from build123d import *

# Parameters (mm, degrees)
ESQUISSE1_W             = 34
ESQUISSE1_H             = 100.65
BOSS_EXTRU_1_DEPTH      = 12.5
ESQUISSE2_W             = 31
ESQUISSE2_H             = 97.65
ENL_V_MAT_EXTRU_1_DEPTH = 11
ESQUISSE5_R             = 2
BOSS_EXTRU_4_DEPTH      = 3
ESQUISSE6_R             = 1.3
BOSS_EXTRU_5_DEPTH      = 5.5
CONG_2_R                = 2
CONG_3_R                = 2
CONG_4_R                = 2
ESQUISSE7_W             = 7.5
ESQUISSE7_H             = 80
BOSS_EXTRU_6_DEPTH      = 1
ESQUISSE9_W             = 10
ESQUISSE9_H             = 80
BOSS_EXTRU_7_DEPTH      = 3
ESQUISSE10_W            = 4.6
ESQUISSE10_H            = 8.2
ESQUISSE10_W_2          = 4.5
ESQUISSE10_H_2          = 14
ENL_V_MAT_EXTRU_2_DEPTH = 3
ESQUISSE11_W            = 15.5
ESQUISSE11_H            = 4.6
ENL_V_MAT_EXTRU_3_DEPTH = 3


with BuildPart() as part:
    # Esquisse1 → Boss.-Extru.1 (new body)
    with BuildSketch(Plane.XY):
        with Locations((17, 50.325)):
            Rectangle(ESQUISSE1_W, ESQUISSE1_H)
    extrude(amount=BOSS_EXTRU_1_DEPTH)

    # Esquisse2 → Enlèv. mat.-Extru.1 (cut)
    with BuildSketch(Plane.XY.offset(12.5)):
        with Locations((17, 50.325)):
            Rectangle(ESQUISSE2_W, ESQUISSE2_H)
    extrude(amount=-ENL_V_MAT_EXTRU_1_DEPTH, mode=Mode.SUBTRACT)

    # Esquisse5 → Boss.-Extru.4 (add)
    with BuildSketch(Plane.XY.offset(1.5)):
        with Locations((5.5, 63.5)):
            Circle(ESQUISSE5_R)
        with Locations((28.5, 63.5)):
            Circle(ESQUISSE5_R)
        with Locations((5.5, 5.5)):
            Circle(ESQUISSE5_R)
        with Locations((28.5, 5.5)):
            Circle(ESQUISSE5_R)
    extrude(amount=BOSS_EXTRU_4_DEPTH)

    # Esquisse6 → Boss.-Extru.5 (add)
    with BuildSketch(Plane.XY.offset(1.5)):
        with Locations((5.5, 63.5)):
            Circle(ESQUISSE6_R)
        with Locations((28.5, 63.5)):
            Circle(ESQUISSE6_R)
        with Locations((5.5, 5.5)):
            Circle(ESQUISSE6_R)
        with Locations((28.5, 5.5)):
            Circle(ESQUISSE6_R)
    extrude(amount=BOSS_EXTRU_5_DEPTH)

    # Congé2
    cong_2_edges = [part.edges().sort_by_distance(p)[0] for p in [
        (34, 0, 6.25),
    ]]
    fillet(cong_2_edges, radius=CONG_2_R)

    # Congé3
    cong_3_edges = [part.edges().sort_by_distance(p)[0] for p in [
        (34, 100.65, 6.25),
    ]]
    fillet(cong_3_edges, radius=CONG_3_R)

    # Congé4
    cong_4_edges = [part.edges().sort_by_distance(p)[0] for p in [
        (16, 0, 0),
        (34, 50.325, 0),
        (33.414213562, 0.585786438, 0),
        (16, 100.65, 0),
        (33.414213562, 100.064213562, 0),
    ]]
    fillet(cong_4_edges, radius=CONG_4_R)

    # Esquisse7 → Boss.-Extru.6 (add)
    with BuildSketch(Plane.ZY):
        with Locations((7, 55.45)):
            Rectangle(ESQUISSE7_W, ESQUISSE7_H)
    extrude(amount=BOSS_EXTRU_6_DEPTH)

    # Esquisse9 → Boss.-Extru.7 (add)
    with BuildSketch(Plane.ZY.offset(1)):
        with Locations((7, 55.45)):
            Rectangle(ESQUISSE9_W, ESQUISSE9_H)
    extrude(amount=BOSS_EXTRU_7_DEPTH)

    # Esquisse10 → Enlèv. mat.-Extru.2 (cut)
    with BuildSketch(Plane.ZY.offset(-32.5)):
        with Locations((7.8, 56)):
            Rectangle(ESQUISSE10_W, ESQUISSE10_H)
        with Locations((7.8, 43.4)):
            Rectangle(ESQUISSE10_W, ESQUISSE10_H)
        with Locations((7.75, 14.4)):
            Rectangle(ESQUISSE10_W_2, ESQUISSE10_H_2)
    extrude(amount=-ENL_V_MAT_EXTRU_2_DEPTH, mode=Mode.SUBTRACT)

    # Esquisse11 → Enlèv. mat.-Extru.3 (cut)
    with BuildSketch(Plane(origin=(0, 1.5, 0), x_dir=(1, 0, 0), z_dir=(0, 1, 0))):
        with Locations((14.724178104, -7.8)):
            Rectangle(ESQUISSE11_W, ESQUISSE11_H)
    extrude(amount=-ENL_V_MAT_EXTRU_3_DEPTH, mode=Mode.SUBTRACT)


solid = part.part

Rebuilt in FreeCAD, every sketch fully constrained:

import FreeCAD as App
import Part
import Sketcher

V = App.Vector
Q = App.Units.Quantity


def edges_at(feature, points):
    """Names of the edges that pass closest to the given points."""
    edges = feature.Shape.Edges
    near = lambda p: min(range(len(edges)), key=lambda i: edges[i].distToShape(Part.Vertex(*p))[0])
    return sorted({f"Edge{near(p) + 1}" for p in points})

doc = App.newDocument("Part")
body = doc.addObject("PartDesign::Body", "Body")

# Sketch on XY plane
sketch1 = body.newObject("Sketcher::SketchObject", "Sketch")
sketch1.AttachmentSupport = (doc.getObject("XY_Plane"), [""])
sketch1.MapMode = "FlatFace"
sketch1.addGeometry(Part.LineSegment(V(0, 101, 0), V(0, 0, 0)), False)
sketch1.addGeometry(Part.LineSegment(V(0, 0, 0), V(34, 0, 0)), False)
sketch1.addGeometry(Part.LineSegment(V(34, 0, 0), V(34, 101, 0)), False)
sketch1.addGeometry(Part.LineSegment(V(34, 101, 0), V(0, 101, 0)), False)
sketch1.addConstraint(Sketcher.Constraint("Coincident", 0, 2, 1, 1))
sketch1.addConstraint(Sketcher.Constraint("Coincident", 1, 2, 2, 1))
sketch1.addConstraint(Sketcher.Constraint("Coincident", 2, 2, 3, 1))
sketch1.addConstraint(Sketcher.Constraint("Coincident", 3, 2, 0, 1))
sketch1.addConstraint(Sketcher.Constraint("Vertical", 0))
sketch1.addConstraint(Sketcher.Constraint("Horizontal", 1))
sketch1.addConstraint(Sketcher.Constraint("Vertical", 2))
sketch1.addConstraint(Sketcher.Constraint("Horizontal", 3))
sketch1.addConstraint(Sketcher.Constraint("Coincident", 0, 2, -1, 1))
sketch1.addConstraint(Sketcher.Constraint("DistanceX", 1, 1, 1, 2, Q("34 mm")))
sketch1.addConstraint(Sketcher.Constraint("DistanceY", 0, 2, 0, 1, Q("100.65 mm")))
pad1 = body.newObject("PartDesign::Pad", "Pad")
pad1.Profile = sketch1
pad1.Length = 12.5

# Sketch on XY plane
sketch2 = body.newObject("Sketcher::SketchObject", "Sketch001")
sketch2.AttachmentSupport = (doc.getObject("XY_Plane"), [""])
sketch2.MapMode = "FlatFace"
sketch2.AttachmentOffset = App.Placement(V(0, 0, 12.5), App.Rotation())
sketch2.addGeometry(Part.LineSegment(V(2, 99, 0), V(2, 2, 0)), False)
sketch2.addGeometry(Part.LineSegment(V(2, 2, 0), V(32, 2, 0)), False)
sketch2.addGeometry(Part.LineSegment(V(32, 2, 0), V(32, 99, 0)), False)
sketch2.addGeometry(Part.LineSegment(V(32, 99, 0), V(2, 99, 0)), False)
sketch2.addConstraint(Sketcher.Constraint("Coincident", 0, 2, 1, 1))
sketch2.addConstraint(Sketcher.Constraint("Coincident", 1, 2, 2, 1))
sketch2.addConstraint(Sketcher.Constraint("Coincident", 2, 2, 3, 1))
sketch2.addConstraint(Sketcher.Constraint("Coincident", 3, 2, 0, 1))
sketch2.addConstraint(Sketcher.Constraint("Vertical", 0))
sketch2.addConstraint(Sketcher.Constraint("Horizontal", 1))
sketch2.addConstraint(Sketcher.Constraint("Vertical", 2))
sketch2.addConstraint(Sketcher.Constraint("Horizontal", 3))
sketch2.addConstraint(Sketcher.Constraint("DistanceX", 1, 1, 1, 2, Q("31 mm")))
sketch2.addConstraint(Sketcher.Constraint("DistanceY", 0, 2, 0, 1, Q("97.65 mm")))
sketch2.addConstraint(Sketcher.Constraint("DistanceX", -1, 1, 0, 2, Q("1.5 mm")))
sketch2.addConstraint(Sketcher.Constraint("DistanceY", -1, 1, 0, 2, Q("1.5 mm")))
pocket1 = body.newObject("PartDesign::Pocket", "Pocket")
pocket1.Profile = sketch2
pocket1.Length = 11

# Sketch on XY plane
sketch3 = body.newObject("Sketcher::SketchObject", "Sketch002")
sketch3.AttachmentSupport = (doc.getObject("XY_Plane"), [""])
sketch3.MapMode = "FlatFace"
sketch3.AttachmentOffset = App.Placement(V(0, 0, 1.5), App.Rotation())
sketch3.addGeometry(Part.Circle(V(5.5, 63.5, 0), V(0, 0, 1), 2), False)
sketch3.addGeometry(Part.Circle(V(28.5, 63.5, 0), V(0, 0, 1), 2), False)
sketch3.addGeometry(Part.Circle(V(5.5, 5.5, 0), V(0, 0, 1), 2), False)
sketch3.addGeometry(Part.Circle(V(28.5, 5.5, 0), V(0, 0, 1), 2), False)
sketch3.addConstraint(Sketcher.Constraint("Equal", 0, 1))
sketch3.addConstraint(Sketcher.Constraint("Equal", 1, 2))
sketch3.addConstraint(Sketcher.Constraint("Equal", 2, 3))
sketch3.addConstraint(Sketcher.Constraint("Horizontal", 0, 3, 1, 3))
sketch3.addConstraint(Sketcher.Constraint("Horizontal", 2, 3, 3, 3))
sketch3.addConstraint(Sketcher.Constraint("Vertical", 0, 3, 2, 3))
sketch3.addConstraint(Sketcher.Constraint("Vertical", 1, 3, 3, 3))
sketch3.addConstraint(Sketcher.Constraint("Diameter", 0, Q("4 mm")))
sketch3.addConstraint(Sketcher.Constraint("DistanceX", 0, 3, 1, 3, Q("23 mm")))
sketch3.addConstraint(Sketcher.Constraint("DistanceY", 2, 3, 0, 3, Q("58 mm")))
sketch3.addConstraint(Sketcher.Constraint("DistanceX", -1, 1, 0, 3, Q("5.5 mm")))
sketch3.addConstraint(Sketcher.Constraint("DistanceY", -1, 1, 0, 3, Q("63.5 mm")))
pad2 = body.newObject("PartDesign::Pad", "Pad001")
pad2.Profile = sketch3
pad2.Length = 3

# Sketch on XY plane
sketch4 = body.newObject("Sketcher::SketchObject", "Sketch003")
sketch4.AttachmentSupport = (doc.getObject("XY_Plane"), [""])
sketch4.MapMode = "FlatFace"
sketch4.AttachmentOffset = App.Placement(V(0, 0, 1.5), App.Rotation())
sketch4.addGeometry(Part.Circle(V(5.5, 63.5, 0), V(0, 0, 1), 1.3), False)
sketch4.addGeometry(Part.Circle(V(28.5, 63.5, 0), V(0, 0, 1), 1.3), False)
sketch4.addGeometry(Part.Circle(V(5.5, 5.5, 0), V(0, 0, 1), 1.3), False)
sketch4.addGeometry(Part.Circle(V(28.5, 5.5, 0), V(0, 0, 1), 1.3), False)
sketch4.addConstraint(Sketcher.Constraint("Equal", 0, 1))
sketch4.addConstraint(Sketcher.Constraint("Equal", 1, 2))
sketch4.addConstraint(Sketcher.Constraint("Equal", 2, 3))
sketch4.addConstraint(Sketcher.Constraint("Horizontal", 0, 3, 1, 3))
sketch4.addConstraint(Sketcher.Constraint("Horizontal", 2, 3, 3, 3))
sketch4.addConstraint(Sketcher.Constraint("Vertical", 0, 3, 2, 3))
sketch4.addConstraint(Sketcher.Constraint("Vertical", 1, 3, 3, 3))
sketch4.addConstraint(Sketcher.Constraint("Diameter", 0, Q("2.6 mm")))
sketch4.addConstraint(Sketcher.Constraint("DistanceX", 0, 3, 1, 3, Q("23 mm")))
sketch4.addConstraint(Sketcher.Constraint("DistanceY", 2, 3, 0, 3, Q("58 mm")))
sketch4.addConstraint(Sketcher.Constraint("DistanceX", -1, 1, 0, 3, Q("5.5 mm")))
sketch4.addConstraint(Sketcher.Constraint("DistanceY", -1, 1, 0, 3, Q("63.5 mm")))
pad3 = body.newObject("PartDesign::Pad", "Pad002")
pad3.Profile = sketch4
pad3.Length = 5.5
doc.recompute()

fillet = body.newObject("PartDesign::Fillet", "Fillet")
fillet.Base = (pad3, edges_at(pad3, [(34, 0, 6.25)]))
fillet.Radius = 2
doc.recompute()

fillet2 = body.newObject("PartDesign::Fillet", "Fillet001")
fillet2.Base = (fillet, edges_at(fillet, [(34, 100.65, 6.25)]))
fillet2.Radius = 2
doc.recompute()

fillet3 = body.newObject("PartDesign::Fillet", "Fillet002")
fillet3.Base = (fillet2, edges_at(fillet2, [
    (16, 0, 0),
    (34, 50.325, 0),
    (33.414, 0.586, 0),
    (16, 100.65, 0),
    (33.414, 100.064, 0),
]))
fillet3.Radius = 2

# Sketch on YZ plane
sketch5 = body.newObject("Sketcher::SketchObject", "Sketch004")
sketch5.AttachmentSupport = (doc.getObject("YZ_Plane"), [""])
sketch5.MapMode = "FlatFace"
sketch5.addGeometry(Part.LineSegment(V(95, 3, 0), V(15, 3, 0)), False)
sketch5.addGeometry(Part.LineSegment(V(15, 3, 0), V(15, 11, 0)), False)
sketch5.addGeometry(Part.LineSegment(V(15, 11, 0), V(95, 11, 0)), False)
sketch5.addGeometry(Part.LineSegment(V(95, 11, 0), V(95, 3, 0)), False)
sketch5.addConstraint(Sketcher.Constraint("Coincident", 0, 2, 1, 1))
sketch5.addConstraint(Sketcher.Constraint("Coincident", 1, 2, 2, 1))
sketch5.addConstraint(Sketcher.Constraint("Coincident", 2, 2, 3, 1))
sketch5.addConstraint(Sketcher.Constraint("Coincident", 3, 2, 0, 1))
sketch5.addConstraint(Sketcher.Constraint("Horizontal", 0))
sketch5.addConstraint(Sketcher.Constraint("Vertical", 1))
sketch5.addConstraint(Sketcher.Constraint("Horizontal", 2))
sketch5.addConstraint(Sketcher.Constraint("Vertical", 3))
sketch5.addConstraint(Sketcher.Constraint("DistanceX", 0, 2, 0, 1, Q("80 mm")))
sketch5.addConstraint(Sketcher.Constraint("DistanceY", 1, 1, 1, 2, Q("7.5 mm")))
sketch5.addConstraint(Sketcher.Constraint("DistanceX", -1, 1, 0, 2, Q("15.45 mm")))
sketch5.addConstraint(Sketcher.Constraint("DistanceY", -1, 1, 0, 2, Q("3.25 mm")))
pad4 = body.newObject("PartDesign::Pad", "Pad003")
pad4.Profile = sketch5
pad4.Length = 1
pad4.Reversed = True

# Sketch on YZ plane
sketch6 = body.newObject("Sketcher::SketchObject", "Sketch005")
sketch6.AttachmentSupport = (doc.getObject("YZ_Plane"), [""])
sketch6.MapMode = "FlatFace"
sketch6.AttachmentOffset = App.Placement(V(0, 0, -1), App.Rotation())
sketch6.addGeometry(Part.LineSegment(V(95, 2, 0), V(15, 2, 0)), False)
sketch6.addGeometry(Part.LineSegment(V(15, 2, 0), V(15, 12, 0)), False)
sketch6.addGeometry(Part.LineSegment(V(15, 12, 0), V(95, 12, 0)), False)
sketch6.addGeometry(Part.LineSegment(V(95, 12, 0), V(95, 2, 0)), False)
sketch6.addConstraint(Sketcher.Constraint("Coincident", 0, 2, 1, 1))
sketch6.addConstraint(Sketcher.Constraint("Coincident", 1, 2, 2, 1))
sketch6.addConstraint(Sketcher.Constraint("Coincident", 2, 2, 3, 1))
sketch6.addConstraint(Sketcher.Constraint("Coincident", 3, 2, 0, 1))
sketch6.addConstraint(Sketcher.Constraint("Horizontal", 0))
sketch6.addConstraint(Sketcher.Constraint("Vertical", 1))
sketch6.addConstraint(Sketcher.Constraint("Horizontal", 2))
sketch6.addConstraint(Sketcher.Constraint("Vertical", 3))
sketch6.addConstraint(Sketcher.Constraint("DistanceX", 0, 2, 0, 1, Q("80 mm")))
sketch6.addConstraint(Sketcher.Constraint("DistanceY", 1, 1, 1, 2, Q("10 mm")))
sketch6.addConstraint(Sketcher.Constraint("DistanceY", -1, 1, 0, 2, Q("2 mm")))
sketch6.addConstraint(Sketcher.Constraint("DistanceX", -1, 1, 0, 2, Q("15.45 mm")))
pad5 = body.newObject("PartDesign::Pad", "Pad004")
pad5.Profile = sketch6
pad5.Length = 3
pad5.Reversed = True

# Sketch on YZ plane
sketch7 = body.newObject("Sketcher::SketchObject", "Sketch006")
sketch7.AttachmentSupport = (doc.getObject("YZ_Plane"), [""])
sketch7.MapMode = "FlatFace"
sketch7.AttachmentOffset = App.Placement(V(0, 0, 32.5), App.Rotation())
sketch7.addGeometry(Part.LineSegment(V(60.1, 5.5, 0), V(51.9, 5.5, 0)), False)
sketch7.addGeometry(Part.LineSegment(V(51.9, 5.5, 0), V(51.9, 10.1, 0)), False)
sketch7.addGeometry(Part.LineSegment(V(51.9, 10.1, 0), V(60.1, 10.1, 0)), False)
sketch7.addGeometry(Part.LineSegment(V(60.1, 10.1, 0), V(60.1, 5.5, 0)), False)
sketch7.addGeometry(Part.LineSegment(V(47.5, 5.5, 0), V(39.3, 5.5, 0)), False)
sketch7.addGeometry(Part.LineSegment(V(39.3, 5.5, 0), V(39.3, 10.1, 0)), False)
sketch7.addGeometry(Part.LineSegment(V(39.3, 10.1, 0), V(47.5, 10.1, 0)), False)
sketch7.addGeometry(Part.LineSegment(V(47.5, 10.1, 0), V(47.5, 5.5, 0)), False)
sketch7.addGeometry(Part.LineSegment(V(21.4, 5.5, 0), V(7.4, 5.5, 0)), False)
sketch7.addGeometry(Part.LineSegment(V(7.4, 5.5, 0), V(7.4, 10, 0)), False)
sketch7.addGeometry(Part.LineSegment(V(7.4, 10, 0), V(21.4, 10, 0)), False)
sketch7.addGeometry(Part.LineSegment(V(21.4, 10, 0), V(21.4, 5.5, 0)), False)
sketch7.addConstraint(Sketcher.Constraint("Coincident", 0, 2, 1, 1))
sketch7.addConstraint(Sketcher.Constraint("Coincident", 1, 2, 2, 1))
sketch7.addConstraint(Sketcher.Constraint("Coincident", 2, 2, 3, 1))
sketch7.addConstraint(Sketcher.Constraint("Coincident", 3, 2, 0, 1))
sketch7.addConstraint(Sketcher.Constraint("Coincident", 4, 2, 5, 1))
sketch7.addConstraint(Sketcher.Constraint("Coincident", 5, 2, 6, 1))
sketch7.addConstraint(Sketcher.Constraint("Coincident", 6, 2, 7, 1))
sketch7.addConstraint(Sketcher.Constraint("Coincident", 7, 2, 4, 1))
sketch7.addConstraint(Sketcher.Constraint("Coincident", 8, 2, 9, 1))
sketch7.addConstraint(Sketcher.Constraint("Coincident", 9, 2, 10, 1))
sketch7.addConstraint(Sketcher.Constraint("Coincident", 10, 2, 11, 1))
sketch7.addConstraint(Sketcher.Constraint("Coincident", 11, 2, 8, 1))
sketch7.addConstraint(Sketcher.Constraint("Horizontal", 0))
sketch7.addConstraint(Sketcher.Constraint("Vertical", 1))
sketch7.addConstraint(Sketcher.Constraint("Horizontal", 2))
sketch7.addConstraint(Sketcher.Constraint("Vertical", 3))
sketch7.addConstraint(Sketcher.Constraint("Horizontal", 4))
sketch7.addConstraint(Sketcher.Constraint("Vertical", 5))
sketch7.addConstraint(Sketcher.Constraint("Horizontal", 6))
sketch7.addConstraint(Sketcher.Constraint("Vertical", 7))
sketch7.addConstraint(Sketcher.Constraint("Horizontal", 8))
sketch7.addConstraint(Sketcher.Constraint("Vertical", 9))
sketch7.addConstraint(Sketcher.Constraint("Horizontal", 10))
sketch7.addConstraint(Sketcher.Constraint("Vertical", 11))
sketch7.addConstraint(Sketcher.Constraint("Horizontal", 3, 2, 4, 2))
sketch7.addConstraint(Sketcher.Constraint("Horizontal", 2, 2, 5, 2))
sketch7.addConstraint(Sketcher.Constraint("Horizontal", 7, 2, 8, 2))
sketch7.addConstraint(Sketcher.Constraint("Equal", 2, 4))
sketch7.addConstraint(Sketcher.Constraint("DistanceX", 8, 2, 8, 1, Q("14 mm")))
sketch7.addConstraint(Sketcher.Constraint("DistanceX", 0, 2, 0, 1, Q("8.2 mm")))
sketch7.addConstraint(Sketcher.Constraint("DistanceY", 1, 1, 1, 2, Q("4.6 mm")))
sketch7.addConstraint(Sketcher.Constraint("DistanceY", 9, 1, 9, 2, Q("4.5 mm")))
sketch7.addConstraint(Sketcher.Constraint("DistanceY", -1, 1, 9, 2, Q("10 mm")))
sketch7.addConstraint(Sketcher.Constraint("DistanceX", -1, 1, 0, 2, Q("51.9 mm")))
sketch7.addConstraint(Sketcher.Constraint("DistanceX", -1, 1, 4, 2, Q("39.3 mm")))
sketch7.addConstraint(Sketcher.Constraint("DistanceX", -1, 1, 8, 2, Q("7.4 mm")))
pocket2 = body.newObject("PartDesign::Pocket", "Pocket001")
pocket2.Profile = sketch7
pocket2.Length = 3
pocket2.Reversed = True

# Sketch on XZ plane
sketch8 = body.newObject("Sketcher::SketchObject", "Sketch007")
sketch8.AttachmentSupport = (doc.getObject("XZ_Plane"), [""])
sketch8.MapMode = "FlatFace"
sketch8.AttachmentOffset = App.Placement(V(0, 0, -1.5), App.Rotation())
sketch8.addGeometry(Part.LineSegment(V(7, 5.5, 0), V(7, 10.1, 0)), False)
sketch8.addGeometry(Part.LineSegment(V(7, 10.1, 0), V(22.5, 10.1, 0)), False)
sketch8.addGeometry(Part.LineSegment(V(22.5, 10.1, 0), V(22.5, 5.5, 0)), False)
sketch8.addGeometry(Part.LineSegment(V(22.5, 5.5, 0), V(7, 5.5, 0)), False)
sketch8.addConstraint(Sketcher.Constraint("Coincident", 0, 2, 1, 1))
sketch8.addConstraint(Sketcher.Constraint("Coincident", 1, 2, 2, 1))
sketch8.addConstraint(Sketcher.Constraint("Coincident", 2, 2, 3, 1))
sketch8.addConstraint(Sketcher.Constraint("Coincident", 3, 2, 0, 1))
sketch8.addConstraint(Sketcher.Constraint("Vertical", 0))
sketch8.addConstraint(Sketcher.Constraint("Horizontal", 1))
sketch8.addConstraint(Sketcher.Constraint("Vertical", 2))
sketch8.addConstraint(Sketcher.Constraint("Horizontal", 3))
sketch8.addConstraint(Sketcher.Constraint("DistanceX", 1, 1, 1, 2, Q("15.5 mm")))
sketch8.addConstraint(Sketcher.Constraint("DistanceY", 0, 1, 0, 2, Q("4.6 mm")))
sketch8.addConstraint(Sketcher.Constraint("DistanceY", -1, 1, 0, 2, Q("10.1 mm")))
sketch8.addConstraint(Sketcher.Constraint("DistanceX", -1, 1, 0, 2, Q("6.974178 mm")))
pocket3 = body.newObject("PartDesign::Pocket", "Pocket002")
pocket3.Profile = sketch8
pocket3.Length = 3
pocket3.Reversed = True

doc.recompute()
